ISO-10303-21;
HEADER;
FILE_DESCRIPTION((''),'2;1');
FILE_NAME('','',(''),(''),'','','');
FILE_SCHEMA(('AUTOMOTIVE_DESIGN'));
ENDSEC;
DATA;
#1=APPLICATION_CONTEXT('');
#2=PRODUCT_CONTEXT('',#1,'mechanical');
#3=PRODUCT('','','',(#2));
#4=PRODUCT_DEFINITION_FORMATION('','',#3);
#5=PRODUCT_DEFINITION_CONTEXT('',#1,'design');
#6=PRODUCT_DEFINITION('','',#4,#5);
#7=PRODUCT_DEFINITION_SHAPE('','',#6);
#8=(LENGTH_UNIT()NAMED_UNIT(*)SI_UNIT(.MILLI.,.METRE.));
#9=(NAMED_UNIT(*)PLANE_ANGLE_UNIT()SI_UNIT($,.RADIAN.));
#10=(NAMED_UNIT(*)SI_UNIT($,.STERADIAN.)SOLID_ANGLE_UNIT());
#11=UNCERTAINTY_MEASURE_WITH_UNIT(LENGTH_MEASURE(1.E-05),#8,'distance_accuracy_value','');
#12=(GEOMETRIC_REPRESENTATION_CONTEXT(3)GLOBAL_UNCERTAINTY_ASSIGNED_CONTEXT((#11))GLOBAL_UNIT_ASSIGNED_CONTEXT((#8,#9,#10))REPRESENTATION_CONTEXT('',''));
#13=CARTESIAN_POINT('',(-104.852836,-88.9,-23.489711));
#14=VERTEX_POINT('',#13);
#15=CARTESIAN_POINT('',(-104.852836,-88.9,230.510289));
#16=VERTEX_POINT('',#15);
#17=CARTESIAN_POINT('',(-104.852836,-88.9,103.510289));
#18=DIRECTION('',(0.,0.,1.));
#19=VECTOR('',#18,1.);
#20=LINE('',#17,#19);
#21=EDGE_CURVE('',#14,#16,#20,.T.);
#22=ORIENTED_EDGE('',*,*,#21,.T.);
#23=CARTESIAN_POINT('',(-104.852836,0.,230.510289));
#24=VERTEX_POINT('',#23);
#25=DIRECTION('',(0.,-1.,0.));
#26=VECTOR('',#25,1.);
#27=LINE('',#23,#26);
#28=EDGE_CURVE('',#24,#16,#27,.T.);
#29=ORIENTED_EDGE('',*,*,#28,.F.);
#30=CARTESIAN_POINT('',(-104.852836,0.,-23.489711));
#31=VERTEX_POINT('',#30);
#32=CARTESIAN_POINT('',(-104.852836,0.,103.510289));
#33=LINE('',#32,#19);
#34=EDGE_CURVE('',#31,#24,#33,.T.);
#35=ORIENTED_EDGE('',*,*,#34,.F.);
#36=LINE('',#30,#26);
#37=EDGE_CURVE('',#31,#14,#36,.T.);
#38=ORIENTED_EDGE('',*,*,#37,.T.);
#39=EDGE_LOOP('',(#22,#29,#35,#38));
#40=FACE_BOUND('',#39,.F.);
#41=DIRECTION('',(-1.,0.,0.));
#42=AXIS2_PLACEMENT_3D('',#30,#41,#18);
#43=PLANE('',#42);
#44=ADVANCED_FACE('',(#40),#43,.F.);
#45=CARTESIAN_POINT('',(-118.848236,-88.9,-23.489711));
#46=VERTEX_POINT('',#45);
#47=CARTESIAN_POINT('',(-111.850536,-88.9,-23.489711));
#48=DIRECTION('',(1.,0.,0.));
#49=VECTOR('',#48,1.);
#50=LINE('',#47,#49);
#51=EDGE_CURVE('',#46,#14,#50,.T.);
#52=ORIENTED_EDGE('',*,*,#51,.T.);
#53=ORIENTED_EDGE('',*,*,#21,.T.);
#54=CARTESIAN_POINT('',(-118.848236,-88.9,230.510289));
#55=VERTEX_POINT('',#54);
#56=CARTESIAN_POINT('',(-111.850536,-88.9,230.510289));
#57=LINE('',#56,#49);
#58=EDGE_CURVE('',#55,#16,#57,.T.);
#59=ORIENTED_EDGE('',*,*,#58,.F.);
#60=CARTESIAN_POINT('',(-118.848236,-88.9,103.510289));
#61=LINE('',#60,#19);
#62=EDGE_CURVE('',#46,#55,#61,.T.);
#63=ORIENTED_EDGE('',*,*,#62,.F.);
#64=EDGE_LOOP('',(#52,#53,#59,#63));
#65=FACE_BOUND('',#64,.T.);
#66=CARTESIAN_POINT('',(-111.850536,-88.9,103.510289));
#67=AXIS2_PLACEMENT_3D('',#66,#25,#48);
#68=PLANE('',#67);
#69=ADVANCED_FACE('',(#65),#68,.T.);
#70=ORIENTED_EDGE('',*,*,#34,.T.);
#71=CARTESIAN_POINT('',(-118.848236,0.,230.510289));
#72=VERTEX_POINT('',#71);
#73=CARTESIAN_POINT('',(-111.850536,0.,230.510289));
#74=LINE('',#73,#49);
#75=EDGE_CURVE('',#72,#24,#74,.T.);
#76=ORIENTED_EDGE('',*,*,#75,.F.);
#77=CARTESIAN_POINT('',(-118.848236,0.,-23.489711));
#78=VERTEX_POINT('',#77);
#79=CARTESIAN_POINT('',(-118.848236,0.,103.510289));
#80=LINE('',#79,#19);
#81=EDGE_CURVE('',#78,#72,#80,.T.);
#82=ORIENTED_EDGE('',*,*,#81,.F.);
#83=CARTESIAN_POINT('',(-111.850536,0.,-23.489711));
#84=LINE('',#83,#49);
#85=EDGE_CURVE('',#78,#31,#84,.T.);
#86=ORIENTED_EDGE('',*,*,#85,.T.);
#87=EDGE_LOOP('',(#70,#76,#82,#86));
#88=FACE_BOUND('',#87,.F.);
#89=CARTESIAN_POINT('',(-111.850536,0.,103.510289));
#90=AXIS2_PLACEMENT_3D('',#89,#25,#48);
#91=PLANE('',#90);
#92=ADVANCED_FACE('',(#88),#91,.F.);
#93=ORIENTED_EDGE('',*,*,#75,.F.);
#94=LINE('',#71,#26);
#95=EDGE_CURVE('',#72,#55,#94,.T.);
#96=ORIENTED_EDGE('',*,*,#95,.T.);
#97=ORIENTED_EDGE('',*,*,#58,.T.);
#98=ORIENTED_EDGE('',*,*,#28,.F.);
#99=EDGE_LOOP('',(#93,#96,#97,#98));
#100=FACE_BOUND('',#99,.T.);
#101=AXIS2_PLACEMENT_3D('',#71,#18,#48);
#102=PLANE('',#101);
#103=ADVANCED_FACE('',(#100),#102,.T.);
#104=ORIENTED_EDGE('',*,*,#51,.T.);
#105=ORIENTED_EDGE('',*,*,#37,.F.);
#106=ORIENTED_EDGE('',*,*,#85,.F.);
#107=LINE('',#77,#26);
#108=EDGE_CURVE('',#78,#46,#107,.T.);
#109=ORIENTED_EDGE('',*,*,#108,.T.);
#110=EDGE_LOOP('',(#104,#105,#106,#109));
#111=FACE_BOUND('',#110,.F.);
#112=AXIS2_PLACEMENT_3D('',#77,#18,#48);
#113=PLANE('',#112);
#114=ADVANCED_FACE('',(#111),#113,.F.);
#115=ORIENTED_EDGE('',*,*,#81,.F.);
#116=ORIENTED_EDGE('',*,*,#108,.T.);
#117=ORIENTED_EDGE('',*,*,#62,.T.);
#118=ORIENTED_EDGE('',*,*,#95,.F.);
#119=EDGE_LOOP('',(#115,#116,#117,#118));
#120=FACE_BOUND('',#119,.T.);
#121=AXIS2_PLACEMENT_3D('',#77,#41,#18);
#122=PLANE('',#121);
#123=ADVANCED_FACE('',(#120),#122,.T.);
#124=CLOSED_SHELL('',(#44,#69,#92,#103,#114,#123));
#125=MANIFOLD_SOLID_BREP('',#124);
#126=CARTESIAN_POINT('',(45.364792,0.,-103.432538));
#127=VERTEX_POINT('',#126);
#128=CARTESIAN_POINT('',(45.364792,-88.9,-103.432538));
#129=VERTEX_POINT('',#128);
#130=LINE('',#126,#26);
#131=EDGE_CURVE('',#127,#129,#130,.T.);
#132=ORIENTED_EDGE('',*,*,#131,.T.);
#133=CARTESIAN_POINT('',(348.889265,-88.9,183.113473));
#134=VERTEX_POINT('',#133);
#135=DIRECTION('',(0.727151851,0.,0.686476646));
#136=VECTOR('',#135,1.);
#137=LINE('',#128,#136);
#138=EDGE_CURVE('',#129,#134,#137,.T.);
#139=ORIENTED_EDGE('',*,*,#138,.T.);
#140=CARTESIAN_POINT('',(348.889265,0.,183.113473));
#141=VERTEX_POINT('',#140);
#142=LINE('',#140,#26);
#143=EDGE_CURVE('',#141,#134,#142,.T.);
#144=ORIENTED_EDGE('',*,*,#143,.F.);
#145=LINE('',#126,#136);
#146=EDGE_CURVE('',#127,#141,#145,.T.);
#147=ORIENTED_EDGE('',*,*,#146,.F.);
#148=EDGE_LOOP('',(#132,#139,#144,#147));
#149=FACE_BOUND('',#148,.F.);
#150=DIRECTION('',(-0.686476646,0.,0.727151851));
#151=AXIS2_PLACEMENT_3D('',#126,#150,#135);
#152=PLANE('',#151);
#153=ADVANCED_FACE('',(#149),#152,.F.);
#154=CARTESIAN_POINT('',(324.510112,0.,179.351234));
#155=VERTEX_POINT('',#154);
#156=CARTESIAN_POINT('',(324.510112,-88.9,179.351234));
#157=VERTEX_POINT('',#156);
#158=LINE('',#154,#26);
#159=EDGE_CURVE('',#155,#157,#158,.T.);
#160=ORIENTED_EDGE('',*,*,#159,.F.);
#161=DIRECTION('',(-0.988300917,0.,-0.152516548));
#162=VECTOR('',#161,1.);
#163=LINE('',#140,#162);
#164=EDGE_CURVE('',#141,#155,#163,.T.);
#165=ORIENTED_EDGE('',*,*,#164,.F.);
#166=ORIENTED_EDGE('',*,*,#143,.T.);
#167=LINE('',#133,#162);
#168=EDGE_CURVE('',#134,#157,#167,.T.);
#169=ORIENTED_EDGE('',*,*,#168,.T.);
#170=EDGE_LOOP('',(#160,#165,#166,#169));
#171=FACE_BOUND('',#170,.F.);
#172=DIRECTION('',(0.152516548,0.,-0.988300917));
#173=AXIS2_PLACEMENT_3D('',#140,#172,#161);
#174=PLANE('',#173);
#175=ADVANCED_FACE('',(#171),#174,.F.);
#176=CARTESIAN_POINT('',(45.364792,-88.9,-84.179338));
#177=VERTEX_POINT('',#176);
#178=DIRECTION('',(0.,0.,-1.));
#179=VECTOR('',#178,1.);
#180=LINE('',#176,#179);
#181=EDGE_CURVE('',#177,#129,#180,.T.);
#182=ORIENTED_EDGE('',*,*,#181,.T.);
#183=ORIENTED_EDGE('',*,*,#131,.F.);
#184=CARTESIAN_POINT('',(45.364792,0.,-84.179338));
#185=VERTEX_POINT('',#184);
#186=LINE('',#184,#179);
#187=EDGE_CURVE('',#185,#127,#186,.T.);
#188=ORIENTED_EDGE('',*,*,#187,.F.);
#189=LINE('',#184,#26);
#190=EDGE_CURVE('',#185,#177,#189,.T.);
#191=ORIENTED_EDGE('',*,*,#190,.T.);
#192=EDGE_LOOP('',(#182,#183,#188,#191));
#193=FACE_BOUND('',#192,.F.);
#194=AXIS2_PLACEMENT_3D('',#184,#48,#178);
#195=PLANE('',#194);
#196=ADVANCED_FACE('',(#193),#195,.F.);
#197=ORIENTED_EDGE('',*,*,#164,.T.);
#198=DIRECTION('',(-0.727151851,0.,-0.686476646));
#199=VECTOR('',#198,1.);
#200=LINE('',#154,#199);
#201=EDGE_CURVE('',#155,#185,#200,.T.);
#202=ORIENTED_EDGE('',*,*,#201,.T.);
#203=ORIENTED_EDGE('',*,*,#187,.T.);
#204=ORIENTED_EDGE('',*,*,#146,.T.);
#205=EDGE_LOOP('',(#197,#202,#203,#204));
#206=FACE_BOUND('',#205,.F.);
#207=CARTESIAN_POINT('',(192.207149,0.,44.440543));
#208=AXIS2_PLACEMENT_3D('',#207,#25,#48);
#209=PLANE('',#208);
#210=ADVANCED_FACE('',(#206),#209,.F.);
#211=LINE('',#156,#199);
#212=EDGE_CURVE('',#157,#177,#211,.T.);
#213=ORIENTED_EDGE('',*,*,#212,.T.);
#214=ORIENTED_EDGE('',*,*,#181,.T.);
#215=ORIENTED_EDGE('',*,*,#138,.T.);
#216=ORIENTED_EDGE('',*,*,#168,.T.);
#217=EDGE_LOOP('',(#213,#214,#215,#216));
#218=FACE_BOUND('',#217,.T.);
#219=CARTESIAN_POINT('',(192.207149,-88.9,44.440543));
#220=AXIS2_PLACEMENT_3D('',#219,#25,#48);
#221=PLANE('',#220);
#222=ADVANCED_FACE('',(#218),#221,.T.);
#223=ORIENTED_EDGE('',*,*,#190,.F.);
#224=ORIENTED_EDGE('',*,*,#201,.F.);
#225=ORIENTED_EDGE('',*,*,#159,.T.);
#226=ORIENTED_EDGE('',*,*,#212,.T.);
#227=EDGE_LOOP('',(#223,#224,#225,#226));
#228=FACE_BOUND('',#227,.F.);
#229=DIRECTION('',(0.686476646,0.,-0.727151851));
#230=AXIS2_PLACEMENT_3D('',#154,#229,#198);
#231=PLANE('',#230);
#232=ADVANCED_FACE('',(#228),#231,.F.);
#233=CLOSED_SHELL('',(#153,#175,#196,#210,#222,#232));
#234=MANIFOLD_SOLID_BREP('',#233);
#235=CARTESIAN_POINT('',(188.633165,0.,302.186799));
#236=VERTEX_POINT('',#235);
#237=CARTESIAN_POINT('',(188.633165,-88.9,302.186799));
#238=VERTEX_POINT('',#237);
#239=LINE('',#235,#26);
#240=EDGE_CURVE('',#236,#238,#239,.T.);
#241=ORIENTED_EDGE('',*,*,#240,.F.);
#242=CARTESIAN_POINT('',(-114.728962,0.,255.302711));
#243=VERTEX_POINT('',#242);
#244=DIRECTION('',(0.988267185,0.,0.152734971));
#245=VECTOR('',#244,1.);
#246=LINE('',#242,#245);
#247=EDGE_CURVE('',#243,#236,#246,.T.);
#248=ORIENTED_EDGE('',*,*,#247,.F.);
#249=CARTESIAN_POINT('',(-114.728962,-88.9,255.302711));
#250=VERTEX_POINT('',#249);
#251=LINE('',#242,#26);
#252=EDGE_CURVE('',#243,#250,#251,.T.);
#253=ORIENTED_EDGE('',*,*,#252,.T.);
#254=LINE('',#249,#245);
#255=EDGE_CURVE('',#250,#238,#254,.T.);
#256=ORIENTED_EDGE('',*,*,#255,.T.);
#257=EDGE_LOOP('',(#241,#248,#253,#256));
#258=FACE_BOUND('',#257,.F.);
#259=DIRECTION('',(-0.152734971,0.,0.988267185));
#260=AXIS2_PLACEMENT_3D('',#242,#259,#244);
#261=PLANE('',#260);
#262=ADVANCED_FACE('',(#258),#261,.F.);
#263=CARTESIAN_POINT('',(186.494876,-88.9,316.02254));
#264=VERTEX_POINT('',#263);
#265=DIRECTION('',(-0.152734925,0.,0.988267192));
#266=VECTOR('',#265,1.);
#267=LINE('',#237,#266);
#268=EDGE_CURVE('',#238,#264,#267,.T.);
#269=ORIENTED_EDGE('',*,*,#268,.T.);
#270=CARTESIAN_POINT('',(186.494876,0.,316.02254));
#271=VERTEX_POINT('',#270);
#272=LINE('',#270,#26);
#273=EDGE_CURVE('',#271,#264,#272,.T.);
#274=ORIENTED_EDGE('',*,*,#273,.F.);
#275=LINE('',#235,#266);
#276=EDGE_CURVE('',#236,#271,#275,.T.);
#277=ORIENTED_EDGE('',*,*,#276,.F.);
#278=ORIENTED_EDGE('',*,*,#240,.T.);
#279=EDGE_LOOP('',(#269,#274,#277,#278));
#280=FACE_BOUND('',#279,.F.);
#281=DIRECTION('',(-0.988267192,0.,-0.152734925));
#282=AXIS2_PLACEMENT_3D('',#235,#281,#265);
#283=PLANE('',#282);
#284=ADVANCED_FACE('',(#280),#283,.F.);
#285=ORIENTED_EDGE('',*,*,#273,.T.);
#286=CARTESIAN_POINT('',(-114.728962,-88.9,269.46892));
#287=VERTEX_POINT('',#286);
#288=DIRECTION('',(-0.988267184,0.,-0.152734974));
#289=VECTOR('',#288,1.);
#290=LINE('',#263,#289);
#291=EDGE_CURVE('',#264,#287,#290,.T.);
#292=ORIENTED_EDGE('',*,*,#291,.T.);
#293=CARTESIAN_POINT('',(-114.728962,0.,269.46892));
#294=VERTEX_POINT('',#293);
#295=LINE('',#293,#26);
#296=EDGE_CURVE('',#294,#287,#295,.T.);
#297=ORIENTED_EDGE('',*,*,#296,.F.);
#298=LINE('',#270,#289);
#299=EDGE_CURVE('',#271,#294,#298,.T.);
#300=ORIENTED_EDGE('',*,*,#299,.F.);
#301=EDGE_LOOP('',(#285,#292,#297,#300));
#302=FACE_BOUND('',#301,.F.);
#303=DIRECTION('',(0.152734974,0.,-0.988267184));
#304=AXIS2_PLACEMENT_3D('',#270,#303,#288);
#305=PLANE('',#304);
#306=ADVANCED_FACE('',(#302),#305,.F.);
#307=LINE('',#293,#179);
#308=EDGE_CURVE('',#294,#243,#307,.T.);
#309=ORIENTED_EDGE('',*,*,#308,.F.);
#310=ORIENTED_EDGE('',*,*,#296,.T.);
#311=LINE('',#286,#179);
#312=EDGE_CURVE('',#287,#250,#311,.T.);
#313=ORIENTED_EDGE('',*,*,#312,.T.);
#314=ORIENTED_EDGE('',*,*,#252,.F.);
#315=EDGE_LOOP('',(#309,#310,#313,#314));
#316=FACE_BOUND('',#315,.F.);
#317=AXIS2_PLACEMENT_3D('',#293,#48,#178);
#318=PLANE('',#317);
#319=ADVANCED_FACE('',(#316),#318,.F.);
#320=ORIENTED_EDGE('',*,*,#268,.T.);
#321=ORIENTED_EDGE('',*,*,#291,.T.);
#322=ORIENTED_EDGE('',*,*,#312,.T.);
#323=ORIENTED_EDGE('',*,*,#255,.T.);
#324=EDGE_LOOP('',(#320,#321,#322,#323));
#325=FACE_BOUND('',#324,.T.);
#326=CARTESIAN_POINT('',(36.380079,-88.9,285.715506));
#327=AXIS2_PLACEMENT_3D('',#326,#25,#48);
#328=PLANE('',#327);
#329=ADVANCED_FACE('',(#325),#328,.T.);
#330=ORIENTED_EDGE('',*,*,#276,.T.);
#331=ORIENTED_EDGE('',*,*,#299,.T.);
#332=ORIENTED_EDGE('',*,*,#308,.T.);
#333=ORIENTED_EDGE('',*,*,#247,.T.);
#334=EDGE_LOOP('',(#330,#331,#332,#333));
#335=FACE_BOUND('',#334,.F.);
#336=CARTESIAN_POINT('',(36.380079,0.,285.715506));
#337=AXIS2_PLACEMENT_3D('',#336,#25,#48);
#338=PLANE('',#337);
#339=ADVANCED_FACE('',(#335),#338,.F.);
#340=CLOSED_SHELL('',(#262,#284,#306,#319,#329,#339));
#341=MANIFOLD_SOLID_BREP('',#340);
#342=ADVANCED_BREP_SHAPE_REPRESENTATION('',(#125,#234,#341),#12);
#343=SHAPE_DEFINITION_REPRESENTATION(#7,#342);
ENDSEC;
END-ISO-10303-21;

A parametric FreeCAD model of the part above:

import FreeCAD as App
import Part
import Sketcher
Q = App.Units.Quantity


def add_polygon(sketch, points):
    """Adds a closed chain of lines whose ends are joined by coincident constraints."""
    first, n = sketch.GeometryCount, len(points)
    for a, b in zip(points, points[1:] + points[:1]):
        sketch.addGeometry(Part.LineSegment(App.Vector(*a, 0), App.Vector(*b, 0)), False)
    for i in range(n):
        sketch.addConstraint(Sketcher.Constraint("Coincident", first + i, 2, first + (i + 1) % n, 1))

doc = App.newDocument("Part")
params = doc.addObject("Spreadsheet::Sheet", "Params")
for row, (alias, value) in enumerate([
    ("sketch1_length", "12 in"),
    ("pad1_length", "3.5 in"),
    ("sketch2_height", "10 in"),
    ("sketch2_width", "0.551 in"),
    ("pad2_length", "3.5 in"),
    ("sketch3_height", "0.758 in"),
    ("pad3_length", "3.5 in"),
], start=1):
    params.set(f"A{row}", alias)
    params.set(f"B{row}", "=" + value)
    params.setAlias(f"B{row}", alias)

body = doc.addObject("PartDesign::Body", "Body")

sketch1 = doc.addObject("Sketcher::SketchObject", "Sketch")
body.addObject(sketch1)
sketch1.AttachmentSupport = (doc.XZ_Plane, [""])
sketch1.MapMode = "FlatFace"
add_polygon(sketch1, [(186.494876, 316.02254), (-114.728962, 269.46892), (-114.728962, 255.302711), (188.633165, 302.186799)])
sketch1.addConstraint([
    Sketcher.Constraint("Vertical", 1),
    Sketcher.Constraint("Parallel", 0, 2),
    Sketcher.Constraint("Perpendicular", 2, 3),
    Sketcher.Constraint("Distance", 0, Q("12 in")),
    Sketcher.Constraint("Distance", 3, Q("14 mm")),
    Sketcher.Constraint("DistanceY", 1, 2, 1, 1, Q("14.166209 mm")),
    Sketcher.Constraint("DistanceY", -1, 1, 2, 2, Q("302.186799 mm")),
    Sketcher.Constraint("DistanceX", 0, 2, -1, 1, Q("114.728962 mm")),
])
sketch1.setExpression("Constraints[7]", "Params.sketch1_length")
pad1 = doc.addObject("PartDesign::Pad", "Pad")
body.addObject(pad1)
pad1.Profile = sketch1
pad1.setExpression("Length", "Params.pad1_length")
body2 = doc.addObject("PartDesign::Body", "Body001")

sketch2 = doc.addObject("Sketcher::SketchObject", "Sketch001")
body2.addObject(sketch2)
sketch2.AttachmentSupport = (doc.getObject("XZ_Plane001"), [""])
sketch2.MapMode = "FlatFace"
add_polygon(sketch2, [(-119, 231), (-119, -23), (-105, -23), (-105, 231)])
sketch2.addConstraint([
    Sketcher.Constraint("Vertical", 0),
    Sketcher.Constraint("Horizontal", 1),
    Sketcher.Constraint("Vertical", 2),
    Sketcher.Constraint("Horizontal", 3),
    Sketcher.Constraint("DistanceY", 0, 2, 0, 1, Q("10 in")),
    Sketcher.Constraint("DistanceX", 1, 1, 1, 2, Q("0.551 in")),
    Sketcher.Constraint("DistanceY", 0, 2, -1, 1, Q("23.489711 mm")),
    Sketcher.Constraint("DistanceX", 0, 2, -1, 1, Q("118.848236 mm")),
])
sketch2.setExpression("Constraints[8]", "Params.sketch2_height")
sketch2.setExpression("Constraints[9]", "Params.sketch2_width")
pad2 = doc.addObject("PartDesign::Pad", "Pad001")
body2.addObject(pad2)
pad2.Profile = sketch2
pad2.setExpression("Length", "Params.pad2_length")
body3 = doc.addObject("PartDesign::Body", "Body002")

sketch3 = doc.addObject("Sketcher::SketchObject", "Sketch002")
body3.addObject(sketch3)
sketch3.AttachmentSupport = (doc.getObject("XZ_Plane002"), [""])
sketch3.MapMode = "FlatFace"
add_polygon(sketch3, [(45, -103), (349, 183), (325, 179), (45, -84)])
sketch3.addConstraint([
    Sketcher.Constraint("Vertical", 3),
    Sketcher.Constraint("Parallel", 0, 2),
    Sketcher.Constraint("DistanceY", 3, 2, 3, 1, Q("0.758 in")),
    Sketcher.Constraint("Distance", 2, Q("383.888619 mm")),
    Sketcher.Constraint("DistanceX", -1, 1, 1, 2, Q("324.510112 mm")),
    Sketcher.Constraint("DistanceY", 2, 2, -1, 1, Q("84.179338 mm")),
    Sketcher.Constraint("DistanceY", 1, 2, 0, 2, Q("3.762239 mm")),
    Sketcher.Constraint("DistanceX", 2, 2, 1, 2, Q("279.14532 mm")),
])
sketch3.setExpression("Constraints[6]", "Params.sketch3_height")
pad3 = doc.addObject("PartDesign::Pad", "Pad002")
body3.addObject(pad3)
pad3.Profile = sketch3
pad3.setExpression("Length", "Params.pad3_length")

doc.recompute()
